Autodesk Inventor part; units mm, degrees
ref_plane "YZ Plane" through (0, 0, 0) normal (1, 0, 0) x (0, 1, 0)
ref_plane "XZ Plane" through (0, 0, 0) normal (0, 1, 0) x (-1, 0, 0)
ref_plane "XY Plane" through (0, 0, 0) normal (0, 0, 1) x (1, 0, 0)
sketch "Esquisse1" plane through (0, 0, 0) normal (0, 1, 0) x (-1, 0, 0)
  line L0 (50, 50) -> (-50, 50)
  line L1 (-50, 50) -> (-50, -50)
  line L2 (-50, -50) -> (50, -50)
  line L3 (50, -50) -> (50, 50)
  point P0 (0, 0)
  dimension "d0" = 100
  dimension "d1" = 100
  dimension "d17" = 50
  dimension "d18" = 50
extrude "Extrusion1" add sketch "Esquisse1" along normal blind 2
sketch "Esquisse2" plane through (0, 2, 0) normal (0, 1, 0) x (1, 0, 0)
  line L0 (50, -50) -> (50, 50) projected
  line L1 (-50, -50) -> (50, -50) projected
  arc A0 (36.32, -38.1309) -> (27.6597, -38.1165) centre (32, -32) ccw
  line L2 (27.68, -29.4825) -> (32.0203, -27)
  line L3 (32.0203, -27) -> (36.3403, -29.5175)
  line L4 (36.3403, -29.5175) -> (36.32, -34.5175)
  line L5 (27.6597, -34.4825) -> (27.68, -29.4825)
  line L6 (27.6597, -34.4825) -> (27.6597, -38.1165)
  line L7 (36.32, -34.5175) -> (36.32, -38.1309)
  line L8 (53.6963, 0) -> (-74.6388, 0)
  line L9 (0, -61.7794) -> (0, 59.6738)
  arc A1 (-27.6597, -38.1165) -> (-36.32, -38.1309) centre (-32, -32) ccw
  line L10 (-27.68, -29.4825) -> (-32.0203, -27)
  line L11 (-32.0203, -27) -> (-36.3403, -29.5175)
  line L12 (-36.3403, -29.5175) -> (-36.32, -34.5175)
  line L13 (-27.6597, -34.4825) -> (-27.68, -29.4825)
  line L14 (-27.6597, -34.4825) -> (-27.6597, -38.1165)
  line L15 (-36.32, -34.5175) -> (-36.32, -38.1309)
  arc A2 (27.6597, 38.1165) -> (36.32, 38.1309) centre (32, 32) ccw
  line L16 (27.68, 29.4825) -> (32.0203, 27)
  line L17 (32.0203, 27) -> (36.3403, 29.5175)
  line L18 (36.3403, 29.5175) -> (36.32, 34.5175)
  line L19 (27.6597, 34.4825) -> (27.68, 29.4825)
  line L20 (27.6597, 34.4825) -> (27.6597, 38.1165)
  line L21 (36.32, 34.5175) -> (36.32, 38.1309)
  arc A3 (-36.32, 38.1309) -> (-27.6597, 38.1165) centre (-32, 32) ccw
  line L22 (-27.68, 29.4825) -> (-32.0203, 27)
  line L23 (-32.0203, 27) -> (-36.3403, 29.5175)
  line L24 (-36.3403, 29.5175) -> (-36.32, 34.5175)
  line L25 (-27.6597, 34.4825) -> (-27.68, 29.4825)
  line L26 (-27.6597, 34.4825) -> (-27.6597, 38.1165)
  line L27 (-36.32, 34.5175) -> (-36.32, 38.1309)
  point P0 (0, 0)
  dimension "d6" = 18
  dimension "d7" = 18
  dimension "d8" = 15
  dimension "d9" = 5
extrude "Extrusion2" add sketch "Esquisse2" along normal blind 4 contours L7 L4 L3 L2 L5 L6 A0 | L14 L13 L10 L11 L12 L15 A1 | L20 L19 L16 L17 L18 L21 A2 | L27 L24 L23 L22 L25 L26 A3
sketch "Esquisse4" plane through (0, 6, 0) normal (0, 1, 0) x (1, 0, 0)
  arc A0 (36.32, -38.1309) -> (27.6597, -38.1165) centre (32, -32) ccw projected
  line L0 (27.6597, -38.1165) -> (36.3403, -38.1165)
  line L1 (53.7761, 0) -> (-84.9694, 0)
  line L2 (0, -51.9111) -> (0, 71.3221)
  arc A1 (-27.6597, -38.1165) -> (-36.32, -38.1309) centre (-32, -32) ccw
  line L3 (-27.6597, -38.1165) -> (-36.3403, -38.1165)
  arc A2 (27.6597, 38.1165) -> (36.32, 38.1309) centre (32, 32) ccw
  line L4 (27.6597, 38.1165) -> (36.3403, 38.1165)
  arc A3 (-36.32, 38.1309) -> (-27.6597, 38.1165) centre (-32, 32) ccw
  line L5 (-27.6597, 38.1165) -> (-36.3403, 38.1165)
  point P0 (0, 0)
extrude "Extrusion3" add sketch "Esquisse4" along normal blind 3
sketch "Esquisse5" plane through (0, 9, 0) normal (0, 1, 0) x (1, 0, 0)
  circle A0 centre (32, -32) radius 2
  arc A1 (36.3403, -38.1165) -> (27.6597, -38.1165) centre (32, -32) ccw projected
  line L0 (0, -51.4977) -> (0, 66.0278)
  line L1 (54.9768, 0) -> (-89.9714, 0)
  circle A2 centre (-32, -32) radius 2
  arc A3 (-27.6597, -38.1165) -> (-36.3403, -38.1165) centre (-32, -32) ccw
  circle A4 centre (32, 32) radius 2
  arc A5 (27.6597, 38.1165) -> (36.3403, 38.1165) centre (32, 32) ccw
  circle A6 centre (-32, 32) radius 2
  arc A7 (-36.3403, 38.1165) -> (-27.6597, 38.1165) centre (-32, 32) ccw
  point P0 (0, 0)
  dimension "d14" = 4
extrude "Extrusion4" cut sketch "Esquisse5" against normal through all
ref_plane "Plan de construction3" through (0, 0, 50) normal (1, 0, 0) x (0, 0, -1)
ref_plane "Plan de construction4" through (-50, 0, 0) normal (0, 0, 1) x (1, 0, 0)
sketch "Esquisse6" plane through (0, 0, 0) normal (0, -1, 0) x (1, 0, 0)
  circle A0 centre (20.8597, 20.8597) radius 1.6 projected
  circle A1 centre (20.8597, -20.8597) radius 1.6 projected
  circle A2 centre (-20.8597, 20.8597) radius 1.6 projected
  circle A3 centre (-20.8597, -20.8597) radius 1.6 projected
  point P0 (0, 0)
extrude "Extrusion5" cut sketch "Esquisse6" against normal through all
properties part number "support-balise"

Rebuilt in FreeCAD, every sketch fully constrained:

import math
import FreeCAD as App
import Part
import Sketcher

V = App.Vector


def add_polygon(sketch, points):
    """Adds a closed chain of lines whose ends are joined by coincident constraints."""
    first, n = sketch.GeometryCount, len(points)
    for a, b in zip(points, points[1:] + points[:1]):
        sketch.addGeometry(Part.LineSegment(App.Vector(*a, 0), App.Vector(*b, 0)), False)
    for i in range(n):
        sketch.addConstraint(Sketcher.Constraint("Coincident", first + i, 2, first + (i + 1) % n, 1))

doc = App.newDocument("Part")
body = doc.addObject("PartDesign::Body", "Body")

# Sketch on XZ plane
sketch1 = body.newObject("Sketcher::SketchObject", "Sketch")
sketch1.AttachmentSupport = (doc.getObject("XZ_Plane"), [""])
sketch1.MapMode = "FlatFace"
add_polygon(sketch1, [(-50, -50), (-50, 50), (50, 50), (50, -50)])  # lines 0-3
sketch1.addConstraint(Sketcher.Constraint("Vertical", 0))
sketch1.addConstraint(Sketcher.Constraint("Horizontal", 1))
sketch1.addConstraint(Sketcher.Constraint("Vertical", 2))
sketch1.addConstraint(Sketcher.Constraint("Horizontal", 3))
sketch1.addConstraint(Sketcher.Constraint("Symmetric", 0, 2, 2, 2, -1, 1))
sketch1.addConstraint(Sketcher.Constraint("Equal", 3, 0))
sketch1.addConstraint(Sketcher.Constraint("DistanceX", 1, 1, 1, 2, 100.0))
pad1 = body.newObject("PartDesign::Pad", "Pad")
pad1.Profile = sketch1
pad1.Length = 2
pad1.Reversed = True

# Sketch on XZ plane
sketch2 = body.newObject("Sketcher::SketchObject", "Sketch001")
sketch2.AttachmentSupport = (doc.getObject("XZ_Plane"), [""])
sketch2.MapMode = "FlatFace"
sketch2.AttachmentOffset = App.Placement(V(0, 0, -2), App.Rotation())
sketch2.addGeometry(Part.LineSegment(V(36.3, 34.5, 0), V(36.3, 38.1, 0)), False)
sketch2.addGeometry(Part.ArcOfCircle(Part.Circle(V(32, 32, 0), V(0, 0, 1), 7.5), math.radians(125), math.radians(415)), False)
sketch2.addGeometry(Part.LineSegment(V(27.7, 38.1, 0), V(27.7, 34.5, 0)), False)
sketch2.addGeometry(Part.LineSegment(V(27.7, 34.5, 0), V(27.7, 29.5, 0)), False)
sketch2.addGeometry(Part.LineSegment(V(27.7, 29.5, 0), V(32, 27, 0)), False)
sketch2.addGeometry(Part.LineSegment(V(32, 27, 0), V(36.3, 29.5, 0)), False)
sketch2.addGeometry(Part.LineSegment(V(36.3, 29.5, 0), V(36.3, 34.5, 0)), False)
sketch2.addGeometry(Part.LineSegment(V(-27.7, 34.5, 0), V(-27.7, 38.1, 0)), False)
sketch2.addGeometry(Part.ArcOfCircle(Part.Circle(V(-32, 32, 0), V(0, 0, 1), 7.5), math.radians(125), math.radians(415)), False)
sketch2.addGeometry(Part.LineSegment(V(-36.3, 38.1, 0), V(-36.3, 34.5, 0)), False)
sketch2.addGeometry(Part.LineSegment(V(-36.3, 34.5, 0), V(-36.3, 29.5, 0)), False)
sketch2.addGeometry(Part.LineSegment(V(-36.3, 29.5, 0), V(-32, 27, 0)), False)
sketch2.addGeometry(Part.LineSegment(V(-32, 27, 0), V(-27.7, 29.5, 0)), False)
sketch2.addGeometry(Part.LineSegment(V(-27.7, 29.5, 0), V(-27.7, 34.5, 0)), False)
sketch2.addGeometry(Part.LineSegment(V(27.7, -34.5, 0), V(27.7, -38.1, 0)), False)
sketch2.addGeometry(Part.ArcOfCircle(Part.Circle(V(32, -32, 0), V(0, 0, 1), 7.5), math.radians(-55), math.radians(235)), False)
sketch2.addGeometry(Part.LineSegment(V(36.3, -38.1, 0), V(36.3, -34.5, 0)), False)
sketch2.addGeometry(Part.LineSegment(V(36.3, -34.5, 0), V(36.3, -29.5, 0)), False)
sketch2.addGeometry(Part.LineSegment(V(36.3, -29.5, 0), V(32, -27, 0)), False)
sketch2.addGeometry(Part.LineSegment(V(32, -27, 0), V(27.7, -29.5, 0)), False)
sketch2.addGeometry(Part.LineSegment(V(27.7, -29.5, 0), V(27.7, -34.5, 0)), False)
sketch2.addGeometry(Part.LineSegment(V(-36.3, -34.5, 0), V(-36.3, -38.1, 0)), False)
sketch2.addGeometry(Part.ArcOfCircle(Part.Circle(V(-32, -32, 0), V(0, 0, 1), 7.5), math.radians(-55), math.radians(235)), False)
sketch2.addGeometry(Part.LineSegment(V(-27.7, -38.1, 0), V(-27.7, -34.5, 0)), False)
sketch2.addGeometry(Part.LineSegment(V(-27.7, -34.5, 0), V(-27.7, -29.5, 0)), False)
sketch2.addGeometry(Part.LineSegment(V(-27.7, -29.5, 0), V(-32, -27, 0)), False)
sketch2.addGeometry(Part.LineSegment(V(-32, -27, 0), V(-36.3, -29.5, 0)), False)
sketch2.addGeometry(Part.LineSegment(V(-36.3, -29.5, 0), V(-36.3, -34.5, 0)), False)
sketch2.addConstraint(Sketcher.Constraint("Coincident", 0, 2, 1, 2))
sketch2.addConstraint(Sketcher.Constraint("Coincident", 1, 1, 2, 1))
sketch2.addConstraint(Sketcher.Constraint("Coincident", 2, 2, 3, 1))
sketch2.addConstraint(Sketcher.Constraint("Coincident", 3, 2, 4, 1))
sketch2.addConstraint(Sketcher.Constraint("Coincident", 4, 2, 5, 1))
sketch2.addConstraint(Sketcher.Constraint("Coincident", 5, 2, 6, 1))
sketch2.addConstraint(Sketcher.Constraint("Coincident", 6, 2, 0, 1))
sketch2.addConstraint(Sketcher.Constraint("Coincident", 7, 2, 8, 2))
sketch2.addConstraint(Sketcher.Constraint("Coincident", 8, 1, 9, 1))
sketch2.addConstraint(Sketcher.Constraint("Coincident", 9, 2, 10, 1))
sketch2.addConstraint(Sketcher.Constraint("Coincident", 10, 2, 11, 1))
sketch2.addConstraint(Sketcher.Constraint("Coincident", 11, 2, 12, 1))
sketch2.addConstraint(Sketcher.Constraint("Coincident", 12, 2, 13, 1))
sketch2.addConstraint(Sketcher.Constraint("Coincident", 13, 2, 7, 1))
sketch2.addConstraint(Sketcher.Constraint("Coincident", 14, 2, 15, 2))
sketch2.addConstraint(Sketcher.Constraint("Coincident", 15, 1, 16, 1))
sketch2.addConstraint(Sketcher.Constraint("Coincident", 16, 2, 17, 1))
sketch2.addConstraint(Sketcher.Constraint("Coincident", 17, 2, 18, 1))
sketch2.addConstraint(Sketcher.Constraint("Coincident", 18, 2, 19, 1))
sketch2.addConstraint(Sketcher.Constraint("Coincident", 19, 2, 20, 1))
sketch2.addConstraint(Sketcher.Constraint("Coincident", 20, 2, 14, 1))
sketch2.addConstraint(Sketcher.Constraint("Coincident", 21, 2, 22, 2))
sketch2.addConstraint(Sketcher.Constraint("Coincident", 22, 1, 23, 1))
sketch2.addConstraint(Sketcher.Constraint("Coincident", 23, 2, 24, 1))
sketch2.addConstraint(Sketcher.Constraint("Coincident", 24, 2, 25, 1))
sketch2.addConstraint(Sketcher.Constraint("Coincident", 25, 2, 26, 1))
sketch2.addConstraint(Sketcher.Constraint("Coincident", 26, 2, 27, 1))
sketch2.addConstraint(Sketcher.Constraint("Coincident", 27, 2, 21, 1))
sketch2.addConstraint(Sketcher.Constraint("Vertical", 0))
sketch2.addConstraint(Sketcher.Constraint("Vertical", 2))
sketch2.addConstraint(Sketcher.Constraint("Vertical", 7))
sketch2.addConstraint(Sketcher.Constraint("Vertical", 9))
sketch2.addConstraint(Sketcher.Constraint("Vertical", 14))
sketch2.addConstraint(Sketcher.Constraint("Vertical", 16))
sketch2.addConstraint(Sketcher.Constraint("Vertical", 21))
sketch2.addConstraint(Sketcher.Constraint("Vertical", 23))
sketch2.addConstraint(Sketcher.Constraint("Equal", 1, 8))
sketch2.addConstraint(Sketcher.Constraint("Equal", 8, 15))
sketch2.addConstraint(Sketcher.Constraint("Equal", 15, 22))
sketch2.addConstraint(Sketcher.Constraint("Symmetric", 8, 3, 15, 3, -1, 1))
sketch2.addConstraint(Sketcher.Constraint("Symmetric", 1, 3, 22, 3, -1, 1))
sketch2.addConstraint(Sketcher.Constraint("Symmetric", 9, 2, 16, 2, -1, 1))
sketch2.addConstraint(Sketcher.Constraint("Symmetric", 10, 2, 17, 2, -1, 1))
sketch2.addConstraint(Sketcher.Constraint("Symmetric", 11, 2, 18, 2, -1, 1))
sketch2.addConstraint(Sketcher.Constraint("Symmetric", 12, 2, 19, 2, -1, 1))
sketch2.addConstraint(Sketcher.Constraint("Symmetric", 13, 2, 20, 2, -1, 1))
sketch2.addConstraint(Sketcher.Constraint("Symmetric", 2, 2, 23, 2, -1, 1))
sketch2.addConstraint(Sketcher.Constraint("Symmetric", 3, 2, 24, 2, -1, 1))
sketch2.addConstraint(Sketcher.Constraint("Symmetric", 4, 2, 25, 2, -1, 1))
sketch2.addConstraint(Sketcher.Constraint("Symmetric", 5, 2, 26, 2, -1, 1))
sketch2.addConstraint(Sketcher.Constraint("Symmetric", 6, 2, 27, 2, -1, 1))
sketch2.addConstraint(Sketcher.Constraint("Symmetric", 1, 3, 8, 3, -2))
sketch2.addConstraint(Sketcher.Constraint("Symmetric", 6, 2, 9, 2, -2))
sketch2.addConstraint(Sketcher.Constraint("Symmetric", 5, 2, 10, 2, -2))
sketch2.addConstraint(Sketcher.Constraint("Symmetric", 4, 2, 11, 2, -2))
sketch2.addConstraint(Sketcher.Constraint("Symmetric", 3, 2, 12, 2, -2))
sketch2.addConstraint(Sketcher.Constraint("Symmetric", 2, 2, 13, 2, -2))
sketch2.addConstraint(Sketcher.Constraint("Parallel", 3, 6))
sketch2.addConstraint(Sketcher.Constraint("Equal", 3, 4))
sketch2.addConstraint(Sketcher.Constraint("Equal", 4, 5))
sketch2.addConstraint(Sketcher.Constraint("Equal", 5, 6))
sketch2.addConstraint(Sketcher.Constraint("Radius", 1, 7.5))
sketch2.addConstraint(Sketcher.Constraint("Distance", 3, 5.0))
sketch2.addConstraint(Sketcher.Constraint("DistanceY", 4, 2, 1, 3, 5.0))
sketch2.addConstraint(Sketcher.Constraint("DistanceX", -1, 1, 1, 3, 32.0))
sketch2.addConstraint(Sketcher.Constraint("DistanceY", -1, 1, 1, 3, 32.0))
sketch2.addConstraint(Sketcher.Constraint("DistanceX", 8, 1, 3, 2, 64.0))
sketch2.addConstraint(Sketcher.Constraint("DistanceY", 2, 2, 2, 1, 3.634))
sketch2.addConstraint(Sketcher.Constraint("DistanceX", -1, 1, 0, 2, 36.32))
sketch2.addConstraint(Sketcher.Constraint("DistanceX", 4, 2, 5, 2, 4.32))
pad2 = body.newObject("PartDesign::Pad", "Pad001")
pad2.Profile = sketch2
pad2.Length = 4
pad2.Reversed = True

# Sketch on XZ plane
sketch3 = body.newObject("Sketcher::SketchObject", "Sketch002")
sketch3.AttachmentSupport = (doc.getObject("XZ_Plane"), [""])
sketch3.MapMode = "FlatFace"
sketch3.AttachmentOffset = App.Placement(V(0, 0, -6), App.Rotation())
sketch3.addGeometry(Part.LineSegment(V(28, 38, 0), V(36, 38, 0)), False)
sketch3.addGeometry(Part.ArcOfCircle(Part.Circle(V(32, 32, 0), V(0, 0, 1), 8), math.radians(125), math.radians(415)), False)
sketch3.addGeometry(Part.LineSegment(V(-36, 38, 0), V(-28, 38, 0)), False)
sketch3.addGeometry(Part.ArcOfCircle(Part.Circle(V(-32, 32, 0), V(0, 0, 1), 7), math.radians(125), math.radians(415)), False)
sketch3.addGeometry(Part.LineSegment(V(36, -38, 0), V(28, -38, 0)), False)
sketch3.addGeometry(Part.ArcOfCircle(Part.Circle(V(32, -32, 0), V(0, 0, 1), 7), math.radians(-55), math.radians(235)), False)
sketch3.addGeometry(Part.LineSegment(V(-28, -38, 0), V(-36, -38, 0)), False)
sketch3.addGeometry(Part.ArcOfCircle(Part.Circle(V(-32, -32, 0), V(0, 0, 1), 8), math.radians(-55), math.radians(235)), False)
sketch3.addConstraint(Sketcher.Constraint("Coincident", 0, 1, 1, 1))
sketch3.addConstraint(Sketcher.Constraint("Coincident", 1, 2, 0, 2))
sketch3.addConstraint(Sketcher.Constraint("Coincident", 2, 1, 3, 1))
sketch3.addConstraint(Sketcher.Constraint("Coincident", 3, 2, 2, 2))
sketch3.addConstraint(Sketcher.Constraint("Coincident", 4, 1, 5, 1))
sketch3.addConstraint(Sketcher.Constraint("Coincident", 5, 2, 4, 2))
sketch3.addConstraint(Sketcher.Constraint("Coincident", 6, 1, 7, 1))
sketch3.addConstraint(Sketcher.Constraint("Coincident", 7, 2, 6, 2))
sketch3.addConstraint(Sketcher.Constraint("Horizontal", 0))
sketch3.addConstraint(Sketcher.Constraint("Horizontal", 2))
sketch3.addConstraint(Sketcher.Constraint("Horizontal", 4))
sketch3.addConstraint(Sketcher.Constraint("Horizontal", 6))
sketch3.addConstraint(Sketcher.Constraint("Equal", 1, 3))
sketch3.addConstraint(Sketcher.Constraint("Equal", 3, 5))
sketch3.addConstraint(Sketcher.Constraint("Equal", 5, 7))
sketch3.addConstraint(Sketcher.Constraint("Symmetric", 3, 3, 5, 3, -1, 1))
sketch3.addConstraint(Sketcher.Constraint("Symmetric", 1, 3, 7, 3, -1, 1))
sketch3.addConstraint(Sketcher.Constraint("Symmetric", 1, 3, 3, 3, -2))
sketch3.addConstraint(Sketcher.Constraint("Horizontal", 1, 2, 2, 1))
sketch3.addConstraint(Sketcher.Constraint("Horizontal", 5, 2, 6, 1))
sketch3.addConstraint(Sketcher.Constraint("Vertical", 1, 2, 4, 1))
sketch3.addConstraint(Sketcher.Constraint("Radius", 1, 7.5))
sketch3.addConstraint(Sketcher.Constraint("DistanceX", -1, 1, 1, 3, 32.0))
sketch3.addConstraint(Sketcher.Constraint("DistanceY", -1, 1, 1, 3, 32.0))
sketch3.addConstraint(Sketcher.Constraint("DistanceX", 0, 1, 0, 2, 8.6806))
pad3 = body.newObject("PartDesign::Pad", "Pad002")
pad3.Profile = sketch3
pad3.Length = 3
pad3.Reversed = True

# Sketch on XZ plane
sketch4 = body.newObject("Sketcher::SketchObject", "Sketch003")
sketch4.AttachmentSupport = (doc.getObject("XZ_Plane"), [""])
sketch4.MapMode = "FlatFace"
sketch4.AttachmentOffset = App.Placement(V(0, 0, -9), App.Rotation())
sketch4.addGeometry(Part.Circle(V(32, 32, 0), V(0, 0, 1), 2), False)
sketch4.addGeometry(Part.Circle(V(-32, 32, 0), V(0, 0, 1), 2), False)
sketch4.addGeometry(Part.Circle(V(32, -32, 0), V(0, 0, 1), 2), False)
sketch4.addGeometry(Part.Circle(V(-32, -32, 0), V(0, 0, 1), 2), False)
sketch4.addConstraint(Sketcher.Constraint("Equal", 0, 1))
sketch4.addConstraint(Sketcher.Constraint("Equal", 1, 2))
sketch4.addConstraint(Sketcher.Constraint("Equal", 2, 3))
sketch4.addConstraint(Sketcher.Constraint("Symmetric", 1, 3, 2, 3, -1, 1))
sketch4.addConstraint(Sketcher.Constraint("Symmetric", 0, 3, 3, 3, -1, 1))
sketch4.addConstraint(Sketcher.Constraint("Symmetric", 0, 3, 1, 3, -2))
sketch4.addConstraint(Sketcher.Constraint("Diameter", 0, 4.0))
sketch4.addConstraint(Sketcher.Constraint("DistanceX", -1, 1, 0, 3, 32.0))
sketch4.addConstraint(Sketcher.Constraint("DistanceY", -1, 1, 0, 3, 32.0))
pocket1 = body.newObject("PartDesign::Pocket", "Pocket")
pocket1.Profile = sketch4
pocket1.Type = "ThroughAll"
pocket1.Reversed = True

# Sketch on XZ plane
sketch5 = body.newObject("Sketcher::SketchObject", "Sketch004")
sketch5.AttachmentSupport = (doc.getObject("XZ_Plane"), [""])
sketch5.MapMode = "FlatFace"
sketch5.addGeometry(Part.Circle(V(20.9, 20.9, 0), V(0, 0, 1), 1.6), False)
sketch5.addGeometry(Part.Circle(V(20.9, -20.9, 0), V(0, 0, 1), 1.6), False)
sketch5.addGeometry(Part.Circle(V(-20.9, 20.9, 0), V(0, 0, 1), 1.6), False)
sketch5.addGeometry(Part.Circle(V(-20.9, -20.9, 0), V(0, 0, 1), 1.6), False)
sketch5.addConstraint(Sketcher.Constraint("Equal", 0, 1))
sketch5.addConstraint(Sketcher.Constraint("Equal", 1, 2))
sketch5.addConstraint(Sketcher.Constraint("Equal", 2, 3))
sketch5.addConstraint(Sketcher.Constraint("Symmetric", 1, 3, 2, 3, -1, 1))
sketch5.addConstraint(Sketcher.Constraint("Symmetric", 0, 3, 3, 3, -1, 1))
sketch5.addConstraint(Sketcher.Constraint("Symmetric", 0, 3, 2, 3, -2))
sketch5.addConstraint(Sketcher.Constraint("Diameter", 0, 3.2))
sketch5.addConstraint(Sketcher.Constraint("DistanceX", -1, 1, 0, 3, 20.8597))
sketch5.addConstraint(Sketcher.Constraint("DistanceY", -1, 1, 0, 3, 20.8597))
pocket2 = body.newObject("PartDesign::Pocket", "Pocket001")
pocket2.Profile = sketch5
pocket2.Type = "ThroughAll"

doc.recompute()
